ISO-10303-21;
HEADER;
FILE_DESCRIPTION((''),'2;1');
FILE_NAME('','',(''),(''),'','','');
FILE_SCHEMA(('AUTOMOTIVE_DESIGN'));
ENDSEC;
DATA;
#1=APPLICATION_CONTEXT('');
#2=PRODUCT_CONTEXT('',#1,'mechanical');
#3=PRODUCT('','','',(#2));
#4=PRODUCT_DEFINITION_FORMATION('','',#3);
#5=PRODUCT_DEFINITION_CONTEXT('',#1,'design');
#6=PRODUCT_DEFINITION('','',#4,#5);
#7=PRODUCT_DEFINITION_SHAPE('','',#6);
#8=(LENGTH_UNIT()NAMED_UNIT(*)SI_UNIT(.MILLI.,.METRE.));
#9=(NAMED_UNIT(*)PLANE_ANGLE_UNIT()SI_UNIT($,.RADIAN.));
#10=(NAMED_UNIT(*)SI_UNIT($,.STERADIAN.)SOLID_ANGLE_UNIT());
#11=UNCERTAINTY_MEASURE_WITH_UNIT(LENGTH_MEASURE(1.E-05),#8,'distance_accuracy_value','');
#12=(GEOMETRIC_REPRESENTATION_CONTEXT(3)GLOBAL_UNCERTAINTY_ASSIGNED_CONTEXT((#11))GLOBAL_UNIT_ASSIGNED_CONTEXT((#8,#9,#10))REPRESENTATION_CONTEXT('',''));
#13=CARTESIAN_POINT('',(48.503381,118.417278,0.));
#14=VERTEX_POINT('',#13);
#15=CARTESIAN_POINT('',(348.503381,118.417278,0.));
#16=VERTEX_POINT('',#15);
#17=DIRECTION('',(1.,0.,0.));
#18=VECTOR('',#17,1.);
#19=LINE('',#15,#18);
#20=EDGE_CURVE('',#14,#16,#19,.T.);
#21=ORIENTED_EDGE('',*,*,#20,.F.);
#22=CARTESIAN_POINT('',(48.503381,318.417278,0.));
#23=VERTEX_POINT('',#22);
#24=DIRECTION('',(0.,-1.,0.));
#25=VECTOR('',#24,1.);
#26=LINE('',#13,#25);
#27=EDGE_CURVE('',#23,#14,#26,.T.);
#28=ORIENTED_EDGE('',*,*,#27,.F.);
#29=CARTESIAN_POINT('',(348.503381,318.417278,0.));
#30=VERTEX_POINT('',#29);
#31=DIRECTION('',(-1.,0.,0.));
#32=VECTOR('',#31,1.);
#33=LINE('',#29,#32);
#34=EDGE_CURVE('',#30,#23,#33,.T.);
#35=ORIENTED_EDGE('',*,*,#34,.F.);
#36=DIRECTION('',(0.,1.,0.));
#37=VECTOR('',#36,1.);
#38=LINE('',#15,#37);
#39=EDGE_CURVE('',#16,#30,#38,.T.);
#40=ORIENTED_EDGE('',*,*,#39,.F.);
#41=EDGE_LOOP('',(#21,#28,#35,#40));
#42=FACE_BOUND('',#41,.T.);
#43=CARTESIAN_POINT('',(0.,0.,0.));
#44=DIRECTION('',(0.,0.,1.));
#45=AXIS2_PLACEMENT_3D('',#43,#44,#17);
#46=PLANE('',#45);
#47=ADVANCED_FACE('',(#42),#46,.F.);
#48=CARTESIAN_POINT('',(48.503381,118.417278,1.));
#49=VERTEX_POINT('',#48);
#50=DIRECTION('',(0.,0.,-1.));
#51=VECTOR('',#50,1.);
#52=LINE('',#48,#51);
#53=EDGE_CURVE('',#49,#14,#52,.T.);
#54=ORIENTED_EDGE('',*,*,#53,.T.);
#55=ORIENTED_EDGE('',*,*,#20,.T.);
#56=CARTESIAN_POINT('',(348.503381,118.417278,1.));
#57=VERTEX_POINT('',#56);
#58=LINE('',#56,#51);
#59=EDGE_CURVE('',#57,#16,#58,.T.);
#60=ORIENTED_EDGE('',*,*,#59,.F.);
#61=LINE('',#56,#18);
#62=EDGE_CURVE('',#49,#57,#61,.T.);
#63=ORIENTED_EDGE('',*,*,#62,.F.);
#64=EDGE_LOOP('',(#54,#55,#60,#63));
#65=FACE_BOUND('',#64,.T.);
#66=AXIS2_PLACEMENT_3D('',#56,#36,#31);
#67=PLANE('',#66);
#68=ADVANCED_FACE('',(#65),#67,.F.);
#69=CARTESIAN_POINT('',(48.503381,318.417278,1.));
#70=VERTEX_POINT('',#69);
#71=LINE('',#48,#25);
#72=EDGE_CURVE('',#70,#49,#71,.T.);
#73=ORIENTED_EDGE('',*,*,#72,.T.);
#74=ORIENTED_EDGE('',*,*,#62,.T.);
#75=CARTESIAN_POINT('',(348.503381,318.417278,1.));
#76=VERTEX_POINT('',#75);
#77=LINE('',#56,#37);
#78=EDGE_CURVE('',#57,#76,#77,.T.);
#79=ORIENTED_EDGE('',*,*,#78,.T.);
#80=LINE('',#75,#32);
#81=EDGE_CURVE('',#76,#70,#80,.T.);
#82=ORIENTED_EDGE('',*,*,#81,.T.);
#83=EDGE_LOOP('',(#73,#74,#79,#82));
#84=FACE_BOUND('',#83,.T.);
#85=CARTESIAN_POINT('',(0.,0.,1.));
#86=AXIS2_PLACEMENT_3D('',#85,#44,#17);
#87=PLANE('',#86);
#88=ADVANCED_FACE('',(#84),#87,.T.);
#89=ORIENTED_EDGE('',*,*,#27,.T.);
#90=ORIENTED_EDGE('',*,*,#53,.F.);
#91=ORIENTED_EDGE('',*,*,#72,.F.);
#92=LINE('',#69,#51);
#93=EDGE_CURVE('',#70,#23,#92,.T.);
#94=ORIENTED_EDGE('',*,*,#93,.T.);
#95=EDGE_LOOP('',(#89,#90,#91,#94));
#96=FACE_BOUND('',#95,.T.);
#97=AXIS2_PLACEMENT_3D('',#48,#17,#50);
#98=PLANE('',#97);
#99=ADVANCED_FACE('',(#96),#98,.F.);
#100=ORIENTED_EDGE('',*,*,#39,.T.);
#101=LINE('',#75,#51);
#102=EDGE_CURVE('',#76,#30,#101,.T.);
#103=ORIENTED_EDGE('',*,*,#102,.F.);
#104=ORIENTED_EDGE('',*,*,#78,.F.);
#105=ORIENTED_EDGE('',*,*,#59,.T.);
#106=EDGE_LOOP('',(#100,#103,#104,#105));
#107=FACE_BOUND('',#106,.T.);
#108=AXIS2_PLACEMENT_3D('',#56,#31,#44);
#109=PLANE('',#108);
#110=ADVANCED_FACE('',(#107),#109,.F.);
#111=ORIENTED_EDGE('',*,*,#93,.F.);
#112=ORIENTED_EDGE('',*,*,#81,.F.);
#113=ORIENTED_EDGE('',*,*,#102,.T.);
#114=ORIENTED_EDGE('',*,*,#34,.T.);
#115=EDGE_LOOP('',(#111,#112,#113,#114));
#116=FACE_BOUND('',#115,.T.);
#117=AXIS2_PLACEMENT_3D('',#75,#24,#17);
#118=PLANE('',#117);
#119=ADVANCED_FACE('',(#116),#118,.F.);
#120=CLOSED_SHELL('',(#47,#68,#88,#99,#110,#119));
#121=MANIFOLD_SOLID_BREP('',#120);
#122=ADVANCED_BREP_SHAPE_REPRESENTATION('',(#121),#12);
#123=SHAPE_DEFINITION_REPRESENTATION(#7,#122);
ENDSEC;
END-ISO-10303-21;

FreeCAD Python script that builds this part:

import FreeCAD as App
import Part
import Sketcher
from FreeCAD import Vector
Q = App.Units.Quantity

doc = App.newDocument("Part")
params = doc.addObject("Spreadsheet::Sheet", "Params")
for row, (alias, value) in enumerate([
    ("sketch1_width", "300 mm"),
    ("sketch1_height", "200 mm"),
    ("pad1_length", "1 mm"),
], start=1):
    params.set(f"A{row}", alias)
    params.set(f"B{row}", "=" + value)
    params.setAlias(f"B{row}", alias)

body = doc.addObject("PartDesign::Body", "Body")

# Sketch on XY plane
sketch1 = doc.addObject("Sketcher::SketchObject", "Sketch")
body.addObject(sketch1)
sketch1.AttachmentSupport = (doc.XY_Plane, [""])
sketch1.MapMode = "FlatFace"
sketch1.addGeometry([
    Part.LineSegment(Vector(49, 318, 0), Vector(49, 118, 0)),
    Part.LineSegment(Vector(49, 118, 0), Vector(349, 118, 0)),
    Part.LineSegment(Vector(349, 118, 0), Vector(349, 318, 0)),
    Part.LineSegment(Vector(349, 318, 0), Vector(49, 318, 0)),
], False)
sketch1.addConstraint([
    Sketcher.Constraint("Coincident", 0, 2, 1, 1),
    Sketcher.Constraint("Coincident", 1, 2, 2, 1),
    Sketcher.Constraint("Coincident", 2, 2, 3, 1),
    Sketcher.Constraint("Coincident", 3, 2, 0, 1),
    Sketcher.Constraint("Vertical", 0),
    Sketcher.Constraint("Horizontal", 1),
    Sketcher.Constraint("Vertical", 2),
    Sketcher.Constraint("Horizontal", 3),
    Sketcher.Constraint("DistanceX", 1, 1, 1, 2, Q("300 mm")),
    Sketcher.Constraint("DistanceY", 0, 2, 0, 1, Q("200 mm")),
    Sketcher.Constraint("DistanceX", -1, 1, 0, 2, Q("48.503381 mm")),
    Sketcher.Constraint("DistanceY", -1, 1, 0, 2, Q("118.417278 mm")),
])
sketch1.setExpression("Constraints[8]", "Params.sketch1_width")
sketch1.setExpression("Constraints[9]", "Params.sketch1_height")
pad1 = doc.addObject("PartDesign::Pad", "Pad")
body.addObject(pad1)
pad1.Profile = sketch1
pad1.setExpression("Length", "Params.pad1_length")

doc.recompute()
